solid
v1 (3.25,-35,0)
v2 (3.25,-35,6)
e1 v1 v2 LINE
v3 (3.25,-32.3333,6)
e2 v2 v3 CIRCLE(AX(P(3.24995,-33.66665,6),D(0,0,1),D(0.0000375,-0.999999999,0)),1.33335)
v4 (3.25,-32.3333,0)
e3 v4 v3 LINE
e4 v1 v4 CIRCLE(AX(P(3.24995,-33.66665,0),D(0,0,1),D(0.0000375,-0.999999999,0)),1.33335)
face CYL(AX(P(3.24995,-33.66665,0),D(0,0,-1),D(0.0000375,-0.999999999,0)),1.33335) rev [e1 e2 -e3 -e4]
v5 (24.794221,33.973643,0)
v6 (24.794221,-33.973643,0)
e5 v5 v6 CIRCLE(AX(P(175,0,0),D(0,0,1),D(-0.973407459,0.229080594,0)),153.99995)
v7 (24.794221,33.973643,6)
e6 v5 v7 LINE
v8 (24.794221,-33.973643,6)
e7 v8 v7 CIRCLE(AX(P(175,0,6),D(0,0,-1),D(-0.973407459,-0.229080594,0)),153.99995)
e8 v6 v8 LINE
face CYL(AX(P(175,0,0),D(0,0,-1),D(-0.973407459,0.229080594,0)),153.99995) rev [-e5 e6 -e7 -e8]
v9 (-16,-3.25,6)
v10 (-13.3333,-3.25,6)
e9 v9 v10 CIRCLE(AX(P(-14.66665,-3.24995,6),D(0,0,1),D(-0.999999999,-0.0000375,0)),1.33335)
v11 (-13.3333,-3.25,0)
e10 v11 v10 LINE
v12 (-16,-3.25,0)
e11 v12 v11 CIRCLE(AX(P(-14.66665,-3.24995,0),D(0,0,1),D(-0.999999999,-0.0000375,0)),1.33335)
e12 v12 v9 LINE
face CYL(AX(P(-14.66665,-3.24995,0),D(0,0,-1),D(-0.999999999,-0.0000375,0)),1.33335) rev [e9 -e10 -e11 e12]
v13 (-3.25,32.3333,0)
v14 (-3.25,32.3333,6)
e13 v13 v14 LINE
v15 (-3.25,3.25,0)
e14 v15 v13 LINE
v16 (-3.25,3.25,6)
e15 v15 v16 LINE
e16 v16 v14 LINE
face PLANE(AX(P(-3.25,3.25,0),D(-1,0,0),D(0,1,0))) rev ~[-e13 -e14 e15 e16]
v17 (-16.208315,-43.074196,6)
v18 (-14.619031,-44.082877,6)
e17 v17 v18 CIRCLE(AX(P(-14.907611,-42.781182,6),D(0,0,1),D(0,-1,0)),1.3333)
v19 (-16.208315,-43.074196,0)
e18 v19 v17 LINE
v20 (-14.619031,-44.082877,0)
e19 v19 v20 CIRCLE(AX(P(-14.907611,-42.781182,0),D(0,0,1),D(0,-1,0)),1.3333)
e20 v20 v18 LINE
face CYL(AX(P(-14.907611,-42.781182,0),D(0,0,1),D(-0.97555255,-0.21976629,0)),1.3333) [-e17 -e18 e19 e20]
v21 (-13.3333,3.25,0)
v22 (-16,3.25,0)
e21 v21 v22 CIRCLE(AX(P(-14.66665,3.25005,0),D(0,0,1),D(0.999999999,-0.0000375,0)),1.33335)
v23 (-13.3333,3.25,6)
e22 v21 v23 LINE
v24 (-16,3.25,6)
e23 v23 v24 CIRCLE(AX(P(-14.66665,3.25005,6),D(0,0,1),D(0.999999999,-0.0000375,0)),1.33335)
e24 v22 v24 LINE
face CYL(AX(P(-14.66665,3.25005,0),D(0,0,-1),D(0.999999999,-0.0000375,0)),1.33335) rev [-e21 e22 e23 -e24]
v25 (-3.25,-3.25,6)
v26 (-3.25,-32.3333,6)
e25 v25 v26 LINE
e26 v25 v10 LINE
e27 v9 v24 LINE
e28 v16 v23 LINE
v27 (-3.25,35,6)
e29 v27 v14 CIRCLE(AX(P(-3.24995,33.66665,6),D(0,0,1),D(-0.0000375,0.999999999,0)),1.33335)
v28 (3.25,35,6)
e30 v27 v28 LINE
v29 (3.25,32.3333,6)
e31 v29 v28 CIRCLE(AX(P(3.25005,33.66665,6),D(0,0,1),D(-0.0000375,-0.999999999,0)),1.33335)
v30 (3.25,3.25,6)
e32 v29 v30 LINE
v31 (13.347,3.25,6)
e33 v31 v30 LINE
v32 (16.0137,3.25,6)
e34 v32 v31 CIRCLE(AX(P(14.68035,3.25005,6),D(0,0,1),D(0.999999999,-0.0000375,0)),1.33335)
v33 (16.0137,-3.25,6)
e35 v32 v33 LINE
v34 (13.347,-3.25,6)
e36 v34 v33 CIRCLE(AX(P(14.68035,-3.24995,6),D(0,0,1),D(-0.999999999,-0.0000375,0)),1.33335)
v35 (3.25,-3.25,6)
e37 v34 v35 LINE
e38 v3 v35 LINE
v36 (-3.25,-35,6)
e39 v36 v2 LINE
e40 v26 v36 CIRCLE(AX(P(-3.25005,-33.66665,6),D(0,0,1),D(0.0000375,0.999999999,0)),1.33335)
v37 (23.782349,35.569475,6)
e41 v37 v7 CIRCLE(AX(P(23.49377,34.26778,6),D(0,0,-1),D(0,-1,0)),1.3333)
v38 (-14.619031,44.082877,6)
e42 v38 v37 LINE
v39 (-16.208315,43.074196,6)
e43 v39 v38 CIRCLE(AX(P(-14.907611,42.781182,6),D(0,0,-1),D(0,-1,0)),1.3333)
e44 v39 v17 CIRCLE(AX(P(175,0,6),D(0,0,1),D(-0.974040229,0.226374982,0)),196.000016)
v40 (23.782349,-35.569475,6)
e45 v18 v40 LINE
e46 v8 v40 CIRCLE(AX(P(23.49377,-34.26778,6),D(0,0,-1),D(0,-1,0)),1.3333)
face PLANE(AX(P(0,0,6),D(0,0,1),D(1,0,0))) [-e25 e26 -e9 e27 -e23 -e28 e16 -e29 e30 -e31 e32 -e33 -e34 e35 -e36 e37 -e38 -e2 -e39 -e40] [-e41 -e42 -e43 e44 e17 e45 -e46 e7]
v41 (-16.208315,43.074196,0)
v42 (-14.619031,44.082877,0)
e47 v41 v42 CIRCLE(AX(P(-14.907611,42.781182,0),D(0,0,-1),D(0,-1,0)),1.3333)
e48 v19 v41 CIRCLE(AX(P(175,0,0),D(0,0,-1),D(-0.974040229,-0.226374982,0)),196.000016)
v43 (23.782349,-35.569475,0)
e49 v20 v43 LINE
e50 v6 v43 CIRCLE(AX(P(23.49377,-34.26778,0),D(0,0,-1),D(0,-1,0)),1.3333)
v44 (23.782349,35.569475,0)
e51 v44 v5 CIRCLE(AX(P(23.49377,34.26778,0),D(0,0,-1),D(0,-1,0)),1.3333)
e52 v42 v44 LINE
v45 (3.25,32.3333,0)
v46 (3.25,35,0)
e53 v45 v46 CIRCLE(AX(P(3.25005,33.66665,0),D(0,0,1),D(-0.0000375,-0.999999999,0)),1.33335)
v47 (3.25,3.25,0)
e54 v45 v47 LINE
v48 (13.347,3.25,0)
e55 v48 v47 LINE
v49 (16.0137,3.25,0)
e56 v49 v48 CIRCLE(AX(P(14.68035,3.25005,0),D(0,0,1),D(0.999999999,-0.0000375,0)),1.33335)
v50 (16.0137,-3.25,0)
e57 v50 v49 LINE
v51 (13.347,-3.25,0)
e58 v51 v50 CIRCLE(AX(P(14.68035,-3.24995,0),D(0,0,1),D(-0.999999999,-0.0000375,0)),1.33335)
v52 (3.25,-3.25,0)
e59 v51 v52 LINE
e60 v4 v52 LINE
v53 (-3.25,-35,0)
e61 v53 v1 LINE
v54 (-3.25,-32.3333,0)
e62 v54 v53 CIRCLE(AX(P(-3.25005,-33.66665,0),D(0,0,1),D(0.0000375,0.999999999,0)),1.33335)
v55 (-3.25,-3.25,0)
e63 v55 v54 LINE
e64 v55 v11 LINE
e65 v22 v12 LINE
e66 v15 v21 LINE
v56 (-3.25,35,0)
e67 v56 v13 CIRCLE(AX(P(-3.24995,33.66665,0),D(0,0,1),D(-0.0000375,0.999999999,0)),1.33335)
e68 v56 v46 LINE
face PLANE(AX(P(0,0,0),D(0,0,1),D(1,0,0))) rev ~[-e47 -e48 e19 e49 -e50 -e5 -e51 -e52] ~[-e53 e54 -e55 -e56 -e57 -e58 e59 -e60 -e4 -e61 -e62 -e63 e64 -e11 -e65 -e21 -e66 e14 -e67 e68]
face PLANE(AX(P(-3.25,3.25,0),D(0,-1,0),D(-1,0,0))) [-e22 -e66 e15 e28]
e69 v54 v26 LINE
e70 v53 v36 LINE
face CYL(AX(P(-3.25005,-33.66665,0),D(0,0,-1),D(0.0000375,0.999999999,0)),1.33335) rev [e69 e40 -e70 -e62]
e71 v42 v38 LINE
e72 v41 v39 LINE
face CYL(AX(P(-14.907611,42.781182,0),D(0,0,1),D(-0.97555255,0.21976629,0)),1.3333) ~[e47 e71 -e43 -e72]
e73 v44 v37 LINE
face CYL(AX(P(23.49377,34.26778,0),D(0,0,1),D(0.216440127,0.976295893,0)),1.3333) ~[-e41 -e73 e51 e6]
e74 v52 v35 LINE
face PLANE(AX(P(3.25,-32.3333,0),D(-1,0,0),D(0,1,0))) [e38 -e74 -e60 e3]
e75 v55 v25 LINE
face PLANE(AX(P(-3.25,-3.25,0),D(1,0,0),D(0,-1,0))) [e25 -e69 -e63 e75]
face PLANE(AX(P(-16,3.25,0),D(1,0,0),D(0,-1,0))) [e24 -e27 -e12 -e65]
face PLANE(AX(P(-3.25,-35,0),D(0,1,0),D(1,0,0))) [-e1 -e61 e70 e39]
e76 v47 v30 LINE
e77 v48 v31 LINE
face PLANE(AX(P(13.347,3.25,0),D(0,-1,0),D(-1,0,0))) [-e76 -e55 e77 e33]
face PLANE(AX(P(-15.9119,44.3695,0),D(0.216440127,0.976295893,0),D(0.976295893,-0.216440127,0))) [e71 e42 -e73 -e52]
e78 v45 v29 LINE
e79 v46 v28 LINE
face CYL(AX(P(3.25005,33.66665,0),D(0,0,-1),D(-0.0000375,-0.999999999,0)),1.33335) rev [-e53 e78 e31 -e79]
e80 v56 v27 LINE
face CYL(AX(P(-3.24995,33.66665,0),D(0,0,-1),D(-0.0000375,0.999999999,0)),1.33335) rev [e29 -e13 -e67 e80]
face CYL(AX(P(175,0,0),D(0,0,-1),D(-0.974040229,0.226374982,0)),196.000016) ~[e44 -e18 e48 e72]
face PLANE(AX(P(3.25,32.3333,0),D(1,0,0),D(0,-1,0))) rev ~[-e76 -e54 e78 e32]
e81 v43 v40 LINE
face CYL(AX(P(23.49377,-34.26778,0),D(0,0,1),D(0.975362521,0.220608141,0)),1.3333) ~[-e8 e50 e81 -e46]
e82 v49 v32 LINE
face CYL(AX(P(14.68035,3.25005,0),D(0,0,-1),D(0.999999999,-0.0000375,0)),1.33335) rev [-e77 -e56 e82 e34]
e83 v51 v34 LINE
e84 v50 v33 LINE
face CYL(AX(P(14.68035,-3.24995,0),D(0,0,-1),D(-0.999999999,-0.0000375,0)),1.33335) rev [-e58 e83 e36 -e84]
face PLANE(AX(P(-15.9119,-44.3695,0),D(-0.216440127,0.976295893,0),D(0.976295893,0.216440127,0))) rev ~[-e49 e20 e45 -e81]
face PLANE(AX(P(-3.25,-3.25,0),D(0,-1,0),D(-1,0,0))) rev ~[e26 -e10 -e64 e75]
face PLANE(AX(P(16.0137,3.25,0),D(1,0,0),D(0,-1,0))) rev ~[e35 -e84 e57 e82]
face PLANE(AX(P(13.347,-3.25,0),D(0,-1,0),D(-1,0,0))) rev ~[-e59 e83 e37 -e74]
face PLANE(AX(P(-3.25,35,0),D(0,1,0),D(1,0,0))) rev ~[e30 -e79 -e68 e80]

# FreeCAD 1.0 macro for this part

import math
import FreeCAD as App
import Part
import Sketcher
Q = App.Units.Quantity


def edges_at(feature, points):
    """Names of the edges that pass closest to the given points."""
    edges = feature.Shape.Edges
    near = lambda p: min(range(len(edges)), key=lambda i: edges[i].distToShape(Part.Vertex(*p))[0])
    return sorted({f"Edge{near(p) + 1}" for p in points})

doc = App.newDocument("Part")
body = doc.addObject("PartDesign::Body", "Body")

# Sketch on XY plane
sketch1 = doc.addObject("Sketcher::SketchObject", "Sketch")
body.addObject(sketch1)
sketch1.AttachmentSupport = (doc.XY_Plane, [""])
sketch1.MapMode = "FlatFace"
sketch1.addGeometry(Part.ArcOfCircle(Part.Circle(App.Vector(175, 0, 0), App.Vector(0, 0, 1), 196), math.radians(167), math.radians(193)), False)
sketch1.addGeometry(Part.LineSegment(App.Vector(-15.9, -44.4, 0), App.Vector(25.1, -35.3, 0)), False)
sketch1.addGeometry(Part.ArcOfCircle(Part.Circle(App.Vector(175, 0, 0), App.Vector(0, 0, 1), 154), math.radians(167), math.radians(193)), False)
sketch1.addGeometry(Part.LineSegment(App.Vector(25.1, 35.3, 0), App.Vector(-15.9, 44.4, 0)), False)
sketch1.addGeometry(Part.ArcOfCircle(Part.Circle(App.Vector(-3.2, 33.7, 0), App.Vector(0, 0, 1), 1.3), math.radians(90), math.radians(270)), False)
sketch1.addGeometry(Part.LineSegment(App.Vector(-3.2, 35, 0), App.Vector(3.2, 35, 0)), False)
sketch1.addGeometry(Part.ArcOfCircle(Part.Circle(App.Vector(3.2, 33.7, 0), App.Vector(0, 0, 1), 1.3), math.radians(-90), math.radians(90)), False)
sketch1.addGeometry(Part.LineSegment(App.Vector(3.2, 32.3, 0), App.Vector(3.2, 3.2, 0)), False)
sketch1.addGeometry(Part.LineSegment(App.Vector(3.2, 3.2, 0), App.Vector(13.3, 3.2, 0)), False)
sketch1.addGeometry(Part.ArcOfCircle(Part.Circle(App.Vector(14.7, 3.2, 0), App.Vector(0, 0, 1), 1.3), math.radians(0), math.radians(180)), False)
sketch1.addGeometry(Part.LineSegment(App.Vector(16, 3.2, 0), App.Vector(16, -3.2, 0)), False)
sketch1.addGeometry(Part.ArcOfCircle(Part.Circle(App.Vector(14.7, -3.2, 0), App.Vector(0, 0, 1), 1.3), math.radians(180), math.radians(360)), False)
sketch1.addGeometry(Part.LineSegment(App.Vector(13.3, -3.2, 0), App.Vector(3.2, -3.2, 0)), False)
sketch1.addGeometry(Part.LineSegment(App.Vector(3.2, -3.2, 0), App.Vector(3.2, -32.3, 0)), False)
sketch1.addGeometry(Part.ArcOfCircle(Part.Circle(App.Vector(3.2, -33.7, 0), App.Vector(0, 0, 1), 1.3), math.radians(-90), math.radians(90)), False)
sketch1.addGeometry(Part.LineSegment(App.Vector(3.2, -35, 0), App.Vector(-3.2, -35, 0)), False)
sketch1.addGeometry(Part.ArcOfCircle(Part.Circle(App.Vector(-3.2, -33.7, 0), App.Vector(0, 0, 1), 1.3), math.radians(90), math.radians(270)), False)
sketch1.addGeometry(Part.LineSegment(App.Vector(-3.2, -32.3, 0), App.Vector(-3.2, -3.2, 0)), False)
sketch1.addGeometry(Part.LineSegment(App.Vector(-3.2, -3.2, 0), App.Vector(-13.3, -3.2, 0)), False)
sketch1.addGeometry(Part.ArcOfCircle(Part.Circle(App.Vector(-14.7, -3.2, 0), App.Vector(0, 0, 1), 1.3), math.radians(180), math.radians(360)), False)
sketch1.addGeometry(Part.LineSegment(App.Vector(-16, -3.2, 0), App.Vector(-16, 3.2, 0)), False)
sketch1.addGeometry(Part.ArcOfCircle(Part.Circle(App.Vector(-14.7, 3.2, 0), App.Vector(0, 0, 1), 1.3), math.radians(0), math.radians(180)), False)
sketch1.addGeometry(Part.LineSegment(App.Vector(-13.3, 3.2, 0), App.Vector(-3.2, 3.2, 0)), False)
sketch1.addGeometry(Part.LineSegment(App.Vector(-3.2, 3.2, 0), App.Vector(-3.2, 32.3, 0)), False)
sketch1.addConstraint(Sketcher.Constraint("Coincident", 0, 2, 1, 1))
sketch1.addConstraint(Sketcher.Constraint("Coincident", 1, 2, 2, 2))
sketch1.addConstraint(Sketcher.Constraint("Coincident", 2, 1, 3, 1))
sketch1.addConstraint(Sketcher.Constraint("Coincident", 3, 2, 0, 1))
sketch1.addConstraint(Sketcher.Constraint("Tangent", 4, 1, 5, 1))
sketch1.addConstraint(Sketcher.Constraint("Tangent", 5, 2, 6, 2))
sketch1.addConstraint(Sketcher.Constraint("Coincident", 6, 1, 7, 1))
sketch1.addConstraint(Sketcher.Constraint("Coincident", 7, 2, 8, 1))
sketch1.addConstraint(Sketcher.Constraint("Coincident", 8, 2, 9, 2))
sketch1.addConstraint(Sketcher.Constraint("Tangent", 9, 1, 10, 1))
sketch1.addConstraint(Sketcher.Constraint("Tangent", 10, 2, 11, 2))
sketch1.addConstraint(Sketcher.Constraint("Coincident", 11, 1, 12, 1))
sketch1.addConstraint(Sketcher.Constraint("Coincident", 12, 2, 13, 1))
sketch1.addConstraint(Sketcher.Constraint("Coincident", 13, 2, 14, 2))
sketch1.addConstraint(Sketcher.Constraint("Tangent", 14, 1, 15, 1))
sketch1.addConstraint(Sketcher.Constraint("Tangent", 15, 2, 16, 2))
sketch1.addConstraint(Sketcher.Constraint("Coincident", 16, 1, 17, 1))
sketch1.addConstraint(Sketcher.Constraint("Coincident", 17, 2, 18, 1))
sketch1.addConstraint(Sketcher.Constraint("Coincident", 18, 2, 19, 2))
sketch1.addConstraint(Sketcher.Constraint("Tangent", 19, 1, 20, 1))
sketch1.addConstraint(Sketcher.Constraint("Tangent", 20, 2, 21, 2))
sketch1.addConstraint(Sketcher.Constraint("Coincident", 21, 1, 22, 1))
sketch1.addConstraint(Sketcher.Constraint("Coincident", 22, 2, 23, 1))
sketch1.addConstraint(Sketcher.Constraint("Coincident", 23, 2, 4, 2))
sketch1.addConstraint(Sketcher.Constraint("Horizontal", 5))
sketch1.addConstraint(Sketcher.Constraint("Vertical", 7))
sketch1.addConstraint(Sketcher.Constraint("Horizontal", 8))
sketch1.addConstraint(Sketcher.Constraint("Vertical", 10))
sketch1.addConstraint(Sketcher.Constraint("Horizontal", 12))
sketch1.addConstraint(Sketcher.Constraint("Vertical", 13))
sketch1.addConstraint(Sketcher.Constraint("Horizontal", 15))
sketch1.addConstraint(Sketcher.Constraint("Vertical", 17))
sketch1.addConstraint(Sketcher.Constraint("Horizontal", 18))
sketch1.addConstraint(Sketcher.Constraint("Vertical", 20))
sketch1.addConstraint(Sketcher.Constraint("Horizontal", 22))
sketch1.addConstraint(Sketcher.Constraint("Vertical", 23))
sketch1.addConstraint(Sketcher.Constraint("Coincident", 2, 3, 0, 3))
sketch1.addConstraint(Sketcher.Constraint("Equal", 4, 6))
sketch1.addConstraint(Sketcher.Constraint("Equal", 6, 9))
sketch1.addConstraint(Sketcher.Constraint("Equal", 9, 11))
sketch1.addConstraint(Sketcher.Constraint("Equal", 11, 14))
sketch1.addConstraint(Sketcher.Constraint("Equal", 14, 16))
sketch1.addConstraint(Sketcher.Constraint("Equal", 16, 19))
sketch1.addConstraint(Sketcher.Constraint("Equal", 19, 21))
sketch1.addConstraint(Sketcher.Constraint("Symmetric", 4, 3, 14, 3, -1, 1))
sketch1.addConstraint(Sketcher.Constraint("Symmetric", 7, 2, 17, 2, -1, 1))
sketch1.addConstraint(Sketcher.Constraint("Symmetric", 12, 2, 22, 2, -1, 1))
sketch1.addConstraint(Sketcher.Constraint("Symmetric", 12, 2, 17, 2, -2))
sketch1.addConstraint(Sketcher.Constraint("Symmetric", 1, 2, 2, 1, -1))
sketch1.addConstraint(Sketcher.Constraint("Horizontal", 11, 3, 19, 3))
sketch1.addConstraint(Sketcher.Constraint("Horizontal", 9, 3, 21, 3))
sketch1.addConstraint(Sketcher.Constraint("Horizontal", 21, 3, 7, 2))
sketch1.addConstraint(Sketcher.Constraint("Horizontal", 10, 2, 11, 1))
sketch1.addConstraint(Sketcher.Constraint("Vertical", 6, 3, 14, 3))
sketch1.addConstraint(Sketcher.Constraint("Vertical", 4, 3, 16, 3))
sketch1.addConstraint(Sketcher.Constraint("Vertical", 0, 2, 3, 2))
sketch1.addConstraint(Sketcher.Constraint("Vertical", 5, 2, 6, 1))
sketch1.addConstraint(Sketcher.Constraint("Equal", 15, 10))
sketch1.addConstraint(Sketcher.Constraint("Radius", 0, 196.0))
sketch1.addConstraint(Sketcher.Constraint("Radius", 2, 154.0))
sketch1.addConstraint(Sketcher.Constraint("Radius", 4, 1.3333))
sketch1.addConstraint(Sketcher.Constraint("DistanceX", 8, 1, 8, 2, 10.097))
sketch1.addConstraint(Sketcher.Constraint("DistanceX", 4, 3, -1, 1, 3.25))
sketch1.addConstraint(Sketcher.Constraint("DistanceX", -1, 1, 0, 3, 175.0))
sketch1.addConstraint(Sketcher.Constraint("DistanceY", -1, 1, 4, 1, 35.0))
sketch1.addConstraint(Sketcher.Constraint("DistanceX", 19, 1, -1, 1, 16.0))
sketch1.addConstraint(Sketcher.Constraint("Angle", 1, Q("12.5 deg")))
sketch1.addConstraint(Sketcher.Constraint("DistanceX", 0, 2, -1, 1, 15.912))
pad1 = doc.addObject("PartDesign::Pad", "Pad")
body.addObject(pad1)
pad1.Profile = sketch1
pad1.Length = 6
doc.recompute()

fillet = doc.addObject("PartDesign::Fillet", "Fillet")
body.addObject(fillet)
fillet.Base = (pad1, edges_at(pad1, [
    (-15.912, -44.37, 3),
    (25.095, -35.278, 3),
    (25.095, 35.278, 3),
    (-15.912, 44.37, 3),
]))
fillet.Radius = 1.3333

doc.recompute()
